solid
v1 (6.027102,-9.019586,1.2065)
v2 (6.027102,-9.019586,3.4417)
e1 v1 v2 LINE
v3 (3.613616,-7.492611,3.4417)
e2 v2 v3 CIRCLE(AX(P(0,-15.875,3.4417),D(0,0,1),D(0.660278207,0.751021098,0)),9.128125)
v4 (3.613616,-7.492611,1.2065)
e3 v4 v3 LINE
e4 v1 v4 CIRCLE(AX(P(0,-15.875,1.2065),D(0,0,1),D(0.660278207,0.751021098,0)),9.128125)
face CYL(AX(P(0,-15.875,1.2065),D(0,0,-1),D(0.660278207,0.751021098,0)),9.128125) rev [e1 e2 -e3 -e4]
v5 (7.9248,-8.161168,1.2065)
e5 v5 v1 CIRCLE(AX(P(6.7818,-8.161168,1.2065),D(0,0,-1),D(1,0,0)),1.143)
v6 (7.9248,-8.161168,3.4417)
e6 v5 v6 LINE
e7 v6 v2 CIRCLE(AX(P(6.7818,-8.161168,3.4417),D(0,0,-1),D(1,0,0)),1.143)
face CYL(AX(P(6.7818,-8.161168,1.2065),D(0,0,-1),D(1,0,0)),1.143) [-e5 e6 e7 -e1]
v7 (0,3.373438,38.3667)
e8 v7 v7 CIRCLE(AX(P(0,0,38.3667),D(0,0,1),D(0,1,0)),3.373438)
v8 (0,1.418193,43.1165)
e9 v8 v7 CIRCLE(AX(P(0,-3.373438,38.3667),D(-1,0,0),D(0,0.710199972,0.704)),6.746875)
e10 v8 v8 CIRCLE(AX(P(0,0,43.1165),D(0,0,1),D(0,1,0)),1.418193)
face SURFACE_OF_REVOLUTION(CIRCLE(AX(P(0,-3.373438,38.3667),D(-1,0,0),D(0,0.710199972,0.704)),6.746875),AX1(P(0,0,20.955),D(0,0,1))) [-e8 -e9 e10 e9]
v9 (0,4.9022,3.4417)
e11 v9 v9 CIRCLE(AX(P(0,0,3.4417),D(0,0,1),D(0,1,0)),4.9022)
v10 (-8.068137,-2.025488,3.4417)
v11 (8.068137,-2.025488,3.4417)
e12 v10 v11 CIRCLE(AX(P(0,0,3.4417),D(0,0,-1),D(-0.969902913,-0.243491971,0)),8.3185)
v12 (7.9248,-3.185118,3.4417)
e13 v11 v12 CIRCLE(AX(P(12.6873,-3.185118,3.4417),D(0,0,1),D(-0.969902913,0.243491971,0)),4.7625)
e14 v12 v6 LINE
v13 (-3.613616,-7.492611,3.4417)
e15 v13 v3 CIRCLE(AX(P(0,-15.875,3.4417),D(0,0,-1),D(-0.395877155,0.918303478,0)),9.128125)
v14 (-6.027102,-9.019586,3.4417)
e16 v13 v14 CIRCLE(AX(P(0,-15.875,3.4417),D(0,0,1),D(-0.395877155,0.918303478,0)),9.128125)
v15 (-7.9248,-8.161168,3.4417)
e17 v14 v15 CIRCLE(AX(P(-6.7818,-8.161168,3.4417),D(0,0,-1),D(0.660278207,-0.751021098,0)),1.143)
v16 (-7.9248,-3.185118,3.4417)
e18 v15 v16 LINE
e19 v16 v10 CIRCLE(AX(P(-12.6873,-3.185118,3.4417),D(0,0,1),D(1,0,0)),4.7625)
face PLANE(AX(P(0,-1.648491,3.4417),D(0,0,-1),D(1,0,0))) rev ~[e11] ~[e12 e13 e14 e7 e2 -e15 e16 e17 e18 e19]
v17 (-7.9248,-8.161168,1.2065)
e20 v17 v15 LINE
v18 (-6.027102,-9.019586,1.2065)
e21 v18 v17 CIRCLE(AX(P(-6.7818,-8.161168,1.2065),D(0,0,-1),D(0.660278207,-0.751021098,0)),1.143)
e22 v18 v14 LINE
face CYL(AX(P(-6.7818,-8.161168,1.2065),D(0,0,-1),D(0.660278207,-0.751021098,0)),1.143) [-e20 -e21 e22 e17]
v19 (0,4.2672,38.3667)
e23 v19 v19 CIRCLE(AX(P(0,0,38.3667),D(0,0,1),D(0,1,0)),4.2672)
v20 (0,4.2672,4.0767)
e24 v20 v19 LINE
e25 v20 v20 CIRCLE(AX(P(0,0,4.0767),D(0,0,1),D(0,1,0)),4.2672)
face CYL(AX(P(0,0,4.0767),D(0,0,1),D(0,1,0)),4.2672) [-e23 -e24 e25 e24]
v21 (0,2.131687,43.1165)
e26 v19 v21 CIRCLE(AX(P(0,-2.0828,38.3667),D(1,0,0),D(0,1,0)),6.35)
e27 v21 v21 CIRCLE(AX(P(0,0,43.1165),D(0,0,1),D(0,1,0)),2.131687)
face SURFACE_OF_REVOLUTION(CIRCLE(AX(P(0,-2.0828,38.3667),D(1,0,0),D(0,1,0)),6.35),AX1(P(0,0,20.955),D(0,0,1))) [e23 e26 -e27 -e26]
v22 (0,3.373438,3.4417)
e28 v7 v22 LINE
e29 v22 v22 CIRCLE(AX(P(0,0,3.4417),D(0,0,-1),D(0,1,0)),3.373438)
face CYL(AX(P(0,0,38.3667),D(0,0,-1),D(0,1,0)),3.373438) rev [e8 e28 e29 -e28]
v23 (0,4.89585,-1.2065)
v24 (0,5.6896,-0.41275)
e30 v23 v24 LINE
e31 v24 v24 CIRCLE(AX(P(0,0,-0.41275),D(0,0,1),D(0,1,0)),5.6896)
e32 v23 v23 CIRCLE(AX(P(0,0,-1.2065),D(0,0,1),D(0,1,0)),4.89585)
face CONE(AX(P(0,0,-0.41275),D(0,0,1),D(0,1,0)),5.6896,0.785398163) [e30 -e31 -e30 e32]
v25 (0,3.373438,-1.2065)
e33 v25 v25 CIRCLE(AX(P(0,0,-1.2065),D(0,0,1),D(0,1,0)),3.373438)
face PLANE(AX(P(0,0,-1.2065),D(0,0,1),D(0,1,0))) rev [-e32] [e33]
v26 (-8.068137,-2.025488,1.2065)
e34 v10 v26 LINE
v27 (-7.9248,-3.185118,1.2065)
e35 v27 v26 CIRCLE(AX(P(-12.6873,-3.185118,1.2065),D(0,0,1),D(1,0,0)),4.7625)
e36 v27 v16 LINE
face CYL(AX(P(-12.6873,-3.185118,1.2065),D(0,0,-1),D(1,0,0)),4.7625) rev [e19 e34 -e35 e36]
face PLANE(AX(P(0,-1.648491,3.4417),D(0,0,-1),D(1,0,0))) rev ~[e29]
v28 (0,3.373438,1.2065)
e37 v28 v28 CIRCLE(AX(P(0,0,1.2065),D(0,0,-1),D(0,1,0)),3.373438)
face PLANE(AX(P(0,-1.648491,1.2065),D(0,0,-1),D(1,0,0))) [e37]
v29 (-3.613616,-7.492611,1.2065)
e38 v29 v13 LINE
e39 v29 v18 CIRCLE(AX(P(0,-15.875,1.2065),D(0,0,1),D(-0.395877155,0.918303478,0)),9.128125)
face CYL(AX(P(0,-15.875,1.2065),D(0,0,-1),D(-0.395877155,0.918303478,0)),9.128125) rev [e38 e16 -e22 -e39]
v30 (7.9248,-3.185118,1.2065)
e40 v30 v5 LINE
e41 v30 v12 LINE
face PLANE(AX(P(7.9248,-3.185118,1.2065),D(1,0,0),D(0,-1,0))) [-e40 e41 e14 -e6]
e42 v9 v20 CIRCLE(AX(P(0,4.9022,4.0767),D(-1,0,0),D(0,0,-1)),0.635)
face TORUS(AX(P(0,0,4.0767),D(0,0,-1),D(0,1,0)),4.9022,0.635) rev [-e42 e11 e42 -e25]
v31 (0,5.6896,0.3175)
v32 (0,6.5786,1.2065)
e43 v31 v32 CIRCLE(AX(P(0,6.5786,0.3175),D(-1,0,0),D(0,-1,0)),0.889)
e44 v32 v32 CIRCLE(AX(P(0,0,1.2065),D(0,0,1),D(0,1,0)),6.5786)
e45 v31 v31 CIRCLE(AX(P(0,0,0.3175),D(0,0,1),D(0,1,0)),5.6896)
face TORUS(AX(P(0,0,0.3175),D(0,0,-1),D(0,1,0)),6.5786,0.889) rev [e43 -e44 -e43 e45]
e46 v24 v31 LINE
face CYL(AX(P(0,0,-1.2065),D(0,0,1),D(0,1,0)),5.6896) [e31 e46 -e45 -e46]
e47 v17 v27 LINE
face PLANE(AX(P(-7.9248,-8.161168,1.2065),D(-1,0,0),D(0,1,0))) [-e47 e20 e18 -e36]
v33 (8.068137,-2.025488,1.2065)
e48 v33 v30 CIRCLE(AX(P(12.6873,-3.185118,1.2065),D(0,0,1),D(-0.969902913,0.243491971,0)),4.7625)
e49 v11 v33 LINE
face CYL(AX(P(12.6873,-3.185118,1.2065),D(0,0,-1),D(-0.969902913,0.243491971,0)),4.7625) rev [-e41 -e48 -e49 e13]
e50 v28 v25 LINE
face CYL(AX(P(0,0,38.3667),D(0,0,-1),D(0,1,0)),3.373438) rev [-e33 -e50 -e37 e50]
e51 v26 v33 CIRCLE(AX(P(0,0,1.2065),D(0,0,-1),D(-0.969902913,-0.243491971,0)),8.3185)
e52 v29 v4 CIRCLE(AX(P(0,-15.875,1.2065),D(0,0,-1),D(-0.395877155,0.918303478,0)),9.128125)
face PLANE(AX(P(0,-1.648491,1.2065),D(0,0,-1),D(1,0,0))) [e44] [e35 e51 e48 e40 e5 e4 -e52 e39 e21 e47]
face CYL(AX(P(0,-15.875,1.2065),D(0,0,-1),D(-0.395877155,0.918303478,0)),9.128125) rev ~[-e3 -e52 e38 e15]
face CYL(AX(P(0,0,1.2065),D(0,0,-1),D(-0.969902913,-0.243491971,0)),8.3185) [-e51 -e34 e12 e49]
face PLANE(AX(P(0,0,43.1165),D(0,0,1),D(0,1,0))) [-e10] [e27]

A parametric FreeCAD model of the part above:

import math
import FreeCAD as App
import Part
import Sketcher

V = App.Vector
Q = App.Units.Quantity


def edges_at(feature, points):
    """Names of the edges that pass closest to the given points."""
    edges = feature.Shape.Edges
    near = lambda p: min(range(len(edges)), key=lambda i: edges[i].distToShape(Part.Vertex(*p))[0])
    return sorted({f"Edge{near(p) + 1}" for p in points})

doc = App.newDocument("Part")
body = doc.addObject("PartDesign::Body", "Body")

# Sketch on YZ plane
sketch1 = doc.addObject("Sketcher::SketchObject", "Sketch")
body.addObject(sketch1)
sketch1.AttachmentSupport = (doc.YZ_Plane, [""])
sketch1.MapMode = "FlatFace"
sketch1.addGeometry([
    Part.LineSegment(V(3.4, 38.4, 0), V(3.4, -1.2, 0)),  # 0
    Part.LineSegment(V(3.4, -1.2, 0), V(5.7, -1.2, 0)),  # 1
    Part.LineSegment(V(5.7, -1.2, 0), V(5.7, 0.3, 0)),  # 2
    Part.ArcOfCircle(Part.Circle(V(6.6, 0.3, 0), V(0, 0, 1), 0.9), math.radians(90), math.radians(180)),  # 3
    Part.LineSegment(V(6.6, 1.2, 0), V(7.7, 1.2, 0)),  # 4
    Part.ArcOfCircle(Part.Circle(V(7, 2.3, 0), V(0, 0, 1), 1.3), math.radians(-62), math.radians(62)),  # 5
    Part.LineSegment(V(7.7, 3.4, 0), V(4.9, 3.4, 0)),  # 6
    Part.ArcOfCircle(Part.Circle(V(4.9, 4.1, 0), V(0, 0, 1), 0.6), math.radians(180), math.radians(270)),  # 7
    Part.LineSegment(V(4.3, 4.1, 0), V(4.3, 38.4, 0)),  # 8
    Part.ArcOfCircle(Part.Circle(V(-2.1, 38.4, 0), V(0, 0, 1), 6.3), math.radians(0), math.radians(48)),  # 9
    Part.LineSegment(V(2.1, 43.1, 0), V(1.4, 43.1, 0)),  # 10
    Part.ArcOfCircle(Part.Circle(V(-3.4, 38.4, 0), V(0, 0, 1), 6.7), math.radians(0), math.radians(45)),  # 11
], False)
sketch1.addConstraint([
    Sketcher.Constraint("Coincident", 0, 2, 1, 1),
    Sketcher.Constraint("Coincident", 1, 2, 2, 1),
    Sketcher.Constraint("Tangent", 2, 2, 3, 2),
    Sketcher.Constraint("Tangent", 3, 1, 4, 1),
    Sketcher.Constraint("Coincident", 4, 2, 5, 1),
    Sketcher.Constraint("Coincident", 5, 2, 6, 1),
    Sketcher.Constraint("Tangent", 6, 2, 7, 2),
    Sketcher.Constraint("Tangent", 7, 1, 8, 1),
    Sketcher.Constraint("Tangent", 8, 2, 9, 1),
    Sketcher.Constraint("Coincident", 9, 2, 10, 1),
    Sketcher.Constraint("Coincident", 10, 2, 11, 2),
    Sketcher.Constraint("Tangent", 11, 1, 0, 1),
    Sketcher.Constraint("Vertical", 0),
    Sketcher.Constraint("Horizontal", 1),
    Sketcher.Constraint("Vertical", 2),
    Sketcher.Constraint("Horizontal", 4),
    Sketcher.Constraint("Horizontal", 6),
    Sketcher.Constraint("Vertical", 8),
    Sketcher.Constraint("Horizontal", 10),
    Sketcher.Constraint("Horizontal", 9, 3, 11, 3),
    Sketcher.Constraint("Vertical", 4, 2, 5, 2),
    Sketcher.Constraint("Radius", 5, Q("0.05 in")),
    Sketcher.Constraint("Radius", 9, Q("0.25 in")),
    Sketcher.Constraint("Radius", 3, Q("0.035 in")),
    Sketcher.Constraint("Radius", 7, Q("0.025 in")),
    Sketcher.Constraint("Radius", 11, Q("0.265625 in")),
    Sketcher.Constraint("DistanceY", 2, 1, 2, 2, Q("0.06 in")),
    Sketcher.Constraint("DistanceY", 8, 1, 8, 2, Q("1.35 in")),
    Sketcher.Constraint("DistanceY", 0, 2, 0, 1, Q("1.558 in")),
    Sketcher.Constraint("DistanceX", -1, 1, 3, 3, Q("0.259 in")),
    Sketcher.Constraint("DistanceX", -1, 1, 7, 3, Q("0.193 in")),
    Sketcher.Constraint("DistanceY", 8, 2, 9, 2, Q("0.187 in")),
    Sketcher.Constraint("DistanceY", -1, 1, 3, 3, Q("0.0125 in")),
    Sketcher.Constraint("DistanceX", -1, 1, 5, 3, Q("0.2775 in")),
    Sketcher.Constraint("DistanceX", 1, 1, 1, 2, Q("2.316163 mm")),
])
revolution = doc.addObject("PartDesign::Revolution", "Revolution")
body.addObject(revolution)
revolution.Profile = sketch1
revolution.ReferenceAxis = (sketch1, ["V_Axis"])
revolution.Angle = 360
doc.recompute()

chamfer = doc.addObject("PartDesign::Chamfer", "Chamfer")
body.addObject(chamfer)
chamfer.Base = (revolution, edges_at(revolution, [(0, -5.69, -1.206)]))
chamfer.ChamferType = "Two distances"
chamfer.Size = Q("0.03125 in")
chamfer.Size2 = Q("0.03125 in")

# Sketch on XY plane
sketch2 = doc.addObject("Sketcher::SketchObject", "Sketch001")
body.addObject(sketch2)
sketch2.AttachmentSupport = (doc.XY_Plane, [""])
sketch2.MapMode = "FlatFace"
sketch2.AttachmentOffset = App.Placement(V(0, 0, 0.0475 * 25.4), App.Rotation())
sketch2.addGeometry([
    Part.ArcOfCircle(Part.Circle(V(-12.7, -3.2, 0), V(0, 0, 1), 4.8), math.radians(0), math.radians(14.09)),  # 0
    Part.ArcOfCircle(Part.Circle(V(0, 0, 0), V(0, 0, 1), 8.3), math.radians(-14), math.radians(194)),  # 1
    Part.ArcOfCircle(Part.Circle(V(12.7, -3.2, 0), V(0, 0, 1), 4.8), math.radians(165.91), math.radians(180)),  # 2
    Part.LineSegment(V(7.9, -3.2, 0), V(7.9, -8.2, 0)),  # 3
    Part.ArcOfCircle(Part.Circle(V(6.8, -8.2, 0), V(0, 0, 1), 1.1), math.radians(-131), math.radians(0)),  # 4
    Part.ArcOfCircle(Part.Circle(V(0, -15.9, 0), V(0, 0, 1), 9.1), math.radians(48.68), math.radians(66.68)),  # 5
    Part.ArcOfCircle(Part.Circle(V(0, 0, 0), V(0, 0, 1), 8.3), math.radians(-116), math.radians(-64)),  # 6
    Part.ArcOfCircle(Part.Circle(V(0, -15.9, 0), V(0, 0, 1), 9.1), math.radians(113.32), math.radians(131.32)),  # 7
    Part.ArcOfCircle(Part.Circle(V(-6.8, -8.2, 0), V(0, 0, 1), 1.1), math.radians(180), math.radians(311)),  # 8
    Part.LineSegment(V(-7.9, -8.2, 0), V(-7.9, -3.2, 0)),  # 9
], False)
sketch2.addConstraint([
    Sketcher.Constraint("Tangent", 0, 2, 1, 2),
    Sketcher.Constraint("Tangent", 1, 1, 2, 1),
    Sketcher.Constraint("Tangent", 2, 2, 3, 1),
    Sketcher.Constraint("Tangent", 3, 2, 4, 2),
    Sketcher.Constraint("Tangent", 4, 1, 5, 1),
    Sketcher.Constraint("Coincident", 5, 2, 6, 2),
    Sketcher.Constraint("Coincident", 6, 1, 7, 1),
    Sketcher.Constraint("Tangent", 7, 2, 8, 2),
    Sketcher.Constraint("Tangent", 8, 1, 9, 1),
    Sketcher.Constraint("Tangent", 9, 2, 0, 1),
    Sketcher.Constraint("Vertical", 3),
    Sketcher.Constraint("Vertical", 9),
    Sketcher.Constraint("Coincident", 1, 3, -1, 1),
    Sketcher.Constraint("Coincident", 6, 3, -1, 1),
    Sketcher.Constraint("Coincident", 7, 3, 5, 3),
    Sketcher.Constraint("Equal", 0, 2),
    Sketcher.Constraint("Equal", 1, 6),
    Sketcher.Constraint("Equal", 5, 7),
    Sketcher.Constraint("Equal", 4, 8),
    Sketcher.Constraint("Symmetric", 4, 3, 8, 3, -2),
    Sketcher.Constraint("Radius", 0, Q("0.1875 in")),
    Sketcher.Constraint("Radius", 4, Q("0.045 in")),
    Sketcher.Constraint("Radius", 5, Q("0.359375 in")),
    Sketcher.Constraint("Radius", 1, Q("0.3275 in")),
    Sketcher.Constraint("DistanceX", -1, 1, 4, 3, Q("0.267 in")),
    Sketcher.Constraint("DistanceY", 5, 3, -1, 1, Q("0.625 in")),
])
pad1 = doc.addObject("PartDesign::Pad", "Pad")
body.addObject(pad1)
pad1.Profile = sketch2
pad1.Length = Q("0.088 in")

# Sketch on XY plane
sketch3 = doc.addObject("Sketcher::SketchObject", "Sketch002")
body.addObject(sketch3)
sketch3.AttachmentSupport = (doc.XY_Plane, [""])
sketch3.MapMode = "FlatFace"
sketch3.AttachmentOffset = App.Placement(V(0, 0, 0.0475 * 25.4), App.Rotation())
sketch3.addGeometry([
    Part.ArcOfCircle(Part.Circle(V(0, 0, 0), V(0, 0, 1), 8), math.radians(-116), math.radians(-64)),
    Part.ArcOfCircle(Part.Circle(V(0, -16, 0), V(0, 0, 1), 9), math.radians(67), math.radians(113)),
], False)
sketch3.addConstraint([
    Sketcher.Constraint("Coincident", 0, 1, 1, 2),
    Sketcher.Constraint("Coincident", 1, 1, 0, 2),
    Sketcher.Constraint("Coincident", 0, 3, -1, 1),
    Sketcher.Constraint("PointOnObject", 1, 3, -2),
    Sketcher.Constraint("Radius", 1, Q("0.359375 in")),
    Sketcher.Constraint("Radius", 0, Q("0.3275 in")),
    Sketcher.Constraint("DistanceY", 1, 3, -1, 1, Q("0.625 in")),
])
pocket1 = doc.addObject("PartDesign::Pocket", "Pocket")
body.addObject(pocket1)
pocket1.Profile = sketch3
pocket1.Length = Q("1 in")
pocket1.Reversed = True

doc.recompute()
